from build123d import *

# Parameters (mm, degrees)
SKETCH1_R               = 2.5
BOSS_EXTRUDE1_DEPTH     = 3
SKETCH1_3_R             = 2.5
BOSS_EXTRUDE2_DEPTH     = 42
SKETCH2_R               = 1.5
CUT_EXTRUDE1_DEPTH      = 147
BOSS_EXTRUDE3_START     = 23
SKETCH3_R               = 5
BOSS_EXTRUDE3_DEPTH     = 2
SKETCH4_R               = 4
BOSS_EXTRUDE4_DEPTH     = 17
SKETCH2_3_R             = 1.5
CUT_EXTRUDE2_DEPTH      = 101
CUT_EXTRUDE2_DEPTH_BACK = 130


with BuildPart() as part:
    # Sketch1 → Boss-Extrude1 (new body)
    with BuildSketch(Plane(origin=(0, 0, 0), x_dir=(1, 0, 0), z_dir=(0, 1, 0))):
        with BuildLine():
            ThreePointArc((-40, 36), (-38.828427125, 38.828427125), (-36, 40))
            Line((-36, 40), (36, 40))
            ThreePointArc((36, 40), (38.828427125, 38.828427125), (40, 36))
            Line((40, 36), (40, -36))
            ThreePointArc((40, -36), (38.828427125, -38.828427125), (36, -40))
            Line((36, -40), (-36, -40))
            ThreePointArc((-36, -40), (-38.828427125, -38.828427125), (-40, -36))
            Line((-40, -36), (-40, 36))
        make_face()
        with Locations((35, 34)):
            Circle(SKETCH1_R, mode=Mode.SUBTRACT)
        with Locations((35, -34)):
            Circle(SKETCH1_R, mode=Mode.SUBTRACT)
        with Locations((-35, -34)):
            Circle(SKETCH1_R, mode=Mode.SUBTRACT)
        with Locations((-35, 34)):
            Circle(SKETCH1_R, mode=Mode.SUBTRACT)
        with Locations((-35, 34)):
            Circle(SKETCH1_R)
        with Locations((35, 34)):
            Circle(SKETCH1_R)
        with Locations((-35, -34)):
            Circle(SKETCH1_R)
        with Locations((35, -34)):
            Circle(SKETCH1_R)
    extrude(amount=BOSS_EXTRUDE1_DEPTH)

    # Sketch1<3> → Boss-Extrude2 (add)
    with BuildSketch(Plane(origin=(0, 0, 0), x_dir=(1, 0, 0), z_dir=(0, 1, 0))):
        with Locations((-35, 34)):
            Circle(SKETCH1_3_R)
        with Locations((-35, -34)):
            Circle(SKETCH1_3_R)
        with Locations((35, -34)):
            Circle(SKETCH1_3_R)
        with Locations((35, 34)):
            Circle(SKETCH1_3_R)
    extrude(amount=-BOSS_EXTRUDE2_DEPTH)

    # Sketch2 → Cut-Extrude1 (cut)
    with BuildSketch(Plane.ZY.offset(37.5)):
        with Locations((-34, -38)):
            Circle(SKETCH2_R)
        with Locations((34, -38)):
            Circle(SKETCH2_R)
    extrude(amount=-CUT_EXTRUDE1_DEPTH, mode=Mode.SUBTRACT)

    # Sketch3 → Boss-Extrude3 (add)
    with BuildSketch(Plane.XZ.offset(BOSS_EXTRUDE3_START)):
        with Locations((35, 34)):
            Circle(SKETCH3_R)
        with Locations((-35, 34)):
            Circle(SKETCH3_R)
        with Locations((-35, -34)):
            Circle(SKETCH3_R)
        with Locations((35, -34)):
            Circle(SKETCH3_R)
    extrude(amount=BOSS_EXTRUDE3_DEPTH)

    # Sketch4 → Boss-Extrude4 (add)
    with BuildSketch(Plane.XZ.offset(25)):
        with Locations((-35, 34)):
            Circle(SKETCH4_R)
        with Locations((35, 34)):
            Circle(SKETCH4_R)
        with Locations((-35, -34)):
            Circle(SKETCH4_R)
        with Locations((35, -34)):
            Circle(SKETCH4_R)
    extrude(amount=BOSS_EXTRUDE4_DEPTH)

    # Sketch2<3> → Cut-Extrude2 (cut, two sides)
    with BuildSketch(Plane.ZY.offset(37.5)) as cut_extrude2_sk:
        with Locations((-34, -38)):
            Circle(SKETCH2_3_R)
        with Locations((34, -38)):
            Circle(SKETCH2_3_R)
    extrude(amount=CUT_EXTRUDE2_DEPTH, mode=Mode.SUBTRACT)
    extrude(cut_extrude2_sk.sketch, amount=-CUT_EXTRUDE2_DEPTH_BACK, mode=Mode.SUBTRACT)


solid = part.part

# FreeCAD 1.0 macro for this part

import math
import FreeCAD as App
import Part
import Sketcher
Q = App.Units.Quantity

doc = App.newDocument("Part")
params = doc.addObject("Spreadsheet::Sheet", "Params")
for row, (alias, value) in enumerate([
    ("sketch1_radius", "4 mm"),
    ("sketch1_width", "72 mm"),
    ("pad1_length", "3 mm"),
    ("sketch2_diameter", "5 mm"),
    ("pad2_length", "42 mm"),
    ("sketch3_diameter", "3 mm"),
    ("pocket1_length", "147 mm"),
    ("sketch4_diameter", "10 mm"),
    ("pad3_length", "2 mm"),
    ("sketch5_diameter", "8 mm"),
    ("pad4_length", "17 mm"),
    ("sketch6_diameter", "3 mm"),
], start=1):
    params.set(f"A{row}", alias)
    params.set(f"B{row}", "=" + value)
    params.setAlias(f"B{row}", alias)

body = doc.addObject("PartDesign::Body", "Body")

sketch1 = body.newObject("Sketcher::SketchObject", "Sketch")
sketch1.AttachmentSupport = (doc.getObject("XZ_Plane"), [""])
sketch1.MapMode = "FlatFace"
sketch1.addGeometry(Part.ArcOfCircle(Part.Circle(App.Vector(-36, -36, 0), App.Vector(0, 0, 1), 4), math.radians(180), math.radians(270)), False)
sketch1.addGeometry(Part.LineSegment(App.Vector(-40, -36, 0), App.Vector(-40, 36, 0)), False)
sketch1.addGeometry(Part.ArcOfCircle(Part.Circle(App.Vector(-36, 36, 0), App.Vector(0, 0, 1), 4), math.radians(90), math.radians(180)), False)
sketch1.addGeometry(Part.LineSegment(App.Vector(-36, 40, 0), App.Vector(36, 40, 0)), False)
sketch1.addGeometry(Part.ArcOfCircle(Part.Circle(App.Vector(36, 36, 0), App.Vector(0, 0, 1), 4), math.radians(0), math.radians(90)), False)
sketch1.addGeometry(Part.LineSegment(App.Vector(40, 36, 0), App.Vector(40, -36, 0)), False)
sketch1.addGeometry(Part.ArcOfCircle(Part.Circle(App.Vector(36, -36, 0), App.Vector(0, 0, 1), 4), math.radians(-90), math.radians(0)), False)
sketch1.addGeometry(Part.LineSegment(App.Vector(36, -40, 0), App.Vector(-36, -40, 0)), False)
sketch1.addConstraint(Sketcher.Constraint("Tangent", 0, 1, 1, 1))
sketch1.addConstraint(Sketcher.Constraint("Tangent", 1, 2, 2, 2))
sketch1.addConstraint(Sketcher.Constraint("Tangent", 2, 1, 3, 1))
sketch1.addConstraint(Sketcher.Constraint("Tangent", 3, 2, 4, 2))
sketch1.addConstraint(Sketcher.Constraint("Tangent", 4, 1, 5, 1))
sketch1.addConstraint(Sketcher.Constraint("Tangent", 5, 2, 6, 2))
sketch1.addConstraint(Sketcher.Constraint("Tangent", 6, 1, 7, 1))
sketch1.addConstraint(Sketcher.Constraint("Tangent", 7, 2, 0, 2))
sketch1.addConstraint(Sketcher.Constraint("Vertical", 1))
sketch1.addConstraint(Sketcher.Constraint("Horizontal", 3))
sketch1.addConstraint(Sketcher.Constraint("Vertical", 5))
sketch1.addConstraint(Sketcher.Constraint("Horizontal", 7))
sketch1.addConstraint(Sketcher.Constraint("Equal", 0, 2))
sketch1.addConstraint(Sketcher.Constraint("Equal", 2, 4))
sketch1.addConstraint(Sketcher.Constraint("Equal", 4, 6))
sketch1.addConstraint(Sketcher.Constraint("Symmetric", 0, 3, 4, 3, -1, 1))
sketch1.addConstraint(Sketcher.Constraint("Equal", 7, 1))
sketch1.addConstraint(Sketcher.Constraint("Radius", 0, Q("4 mm")))
sketch1.addConstraint(Sketcher.Constraint("DistanceX", 3, 1, 3, 2, Q("72 mm")))
sketch1.setExpression("Constraints[17]", "Params.sketch1_radius")
sketch1.setExpression("Constraints[18]", "Params.sketch1_width")
pad1 = body.newObject("PartDesign::Pad", "Pad")
pad1.Profile = sketch1
pad1.setExpression("Length", "Params.pad1_length")
pad1.Reversed = True

sketch2 = body.newObject("Sketcher::SketchObject", "Sketch001")
sketch2.AttachmentSupport = (doc.getObject("XZ_Plane"), [""])
sketch2.MapMode = "FlatFace"
sketch2.addGeometry(Part.Circle(App.Vector(-35, -34, 0), App.Vector(0, 0, 1), 2.5), False)
sketch2.addGeometry(Part.Circle(App.Vector(-35, 34, 0), App.Vector(0, 0, 1), 2.5), False)
sketch2.addGeometry(Part.Circle(App.Vector(35, 34, 0), App.Vector(0, 0, 1), 2.5), False)
sketch2.addGeometry(Part.Circle(App.Vector(35, -34, 0), App.Vector(0, 0, 1), 2.5), False)
sketch2.addConstraint(Sketcher.Constraint("Equal", 0, 1))
sketch2.addConstraint(Sketcher.Constraint("Equal", 1, 2))
sketch2.addConstraint(Sketcher.Constraint("Equal", 2, 3))
sketch2.addConstraint(Sketcher.Constraint("Symmetric", 0, 3, 2, 3, -1, 1))
sketch2.addConstraint(Sketcher.Constraint("Symmetric", 1, 3, 3, 3, -1, 1))
sketch2.addConstraint(Sketcher.Constraint("Symmetric", 1, 3, 2, 3, -2))
sketch2.addConstraint(Sketcher.Constraint("Diameter", 0, Q("5 mm")))
sketch2.addConstraint(Sketcher.Constraint("DistanceX", 0, 3, -1, 1, Q("35 mm")))
sketch2.addConstraint(Sketcher.Constraint("DistanceY", 0, 3, -1, 1, Q("34 mm")))
sketch2.setExpression("Constraints[6]", "Params.sketch2_diameter")
pad2 = body.newObject("PartDesign::Pad", "Pad001")
pad2.Profile = sketch2
pad2.setExpression("Length", "Params.pad2_length")

sketch3 = body.newObject("Sketcher::SketchObject", "Sketch002")
sketch3.AttachmentSupport = (doc.getObject("YZ_Plane"), [""])
sketch3.MapMode = "FlatFace"
sketch3.AttachmentOffset = App.Placement(App.Vector(0, 0, -37.5), App.Rotation())
sketch3.addGeometry(Part.Circle(App.Vector(-38, -34, 0), App.Vector(0, 0, 1), 1.5), False)
sketch3.addGeometry(Part.Circle(App.Vector(-38, 34, 0), App.Vector(0, 0, 1), 1.5), False)
sketch3.addConstraint(Sketcher.Constraint("Equal", 0, 1))
sketch3.addConstraint(Sketcher.Constraint("Symmetric", 0, 3, 1, 3, -1))
sketch3.addConstraint(Sketcher.Constraint("Diameter", 0, Q("3 mm")))
sketch3.addConstraint(Sketcher.Constraint("DistanceX", 0, 3, -1, 1, Q("38 mm")))
sketch3.addConstraint(Sketcher.Constraint("DistanceY", 0, 3, -1, 1, Q("34 mm")))
sketch3.setExpression("Constraints[2]", "Params.sketch3_diameter")
pocket1 = body.newObject("PartDesign::Pocket", "Pocket")
pocket1.Profile = sketch3
pocket1.setExpression("Length", "Params.pocket1_length")
pocket1.Reversed = True

sketch4 = body.newObject("Sketcher::SketchObject", "Sketch003")
sketch4.AttachmentSupport = (doc.getObject("XZ_Plane"), [""])
sketch4.MapMode = "FlatFace"
sketch4.AttachmentOffset = App.Placement(App.Vector(0, 0, 23), App.Rotation())
sketch4.addGeometry(Part.Circle(App.Vector(35, 34, 0), App.Vector(0, 0, 1), 5), False)
sketch4.addGeometry(Part.Circle(App.Vector(-35, 34, 0), App.Vector(0, 0, 1), 5), False)
sketch4.addGeometry(Part.Circle(App.Vector(-35, -34, 0), App.Vector(0, 0, 1), 5), False)
sketch4.addGeometry(Part.Circle(App.Vector(35, -34, 0), App.Vector(0, 0, 1), 5), False)
sketch4.addConstraint(Sketcher.Constraint("Equal", 0, 1))
sketch4.addConstraint(Sketcher.Constraint("Equal", 1, 2))
sketch4.addConstraint(Sketcher.Constraint("Equal", 2, 3))
sketch4.addConstraint(Sketcher.Constraint("Symmetric", 0, 3, 2, 3, -1, 1))
sketch4.addConstraint(Sketcher.Constraint("Symmetric", 1, 3, 3, 3, -1, 1))
sketch4.addConstraint(Sketcher.Constraint("Symmetric", 0, 3, 1, 3, -2))
sketch4.addConstraint(Sketcher.Constraint("Diameter", 0, Q("10 mm")))
sketch4.addConstraint(Sketcher.Constraint("DistanceX", -1, 1, 0, 3, Q("35 mm")))
sketch4.addConstraint(Sketcher.Constraint("DistanceY", -1, 1, 0, 3, Q("34 mm")))
sketch4.setExpression("Constraints[6]", "Params.sketch4_diameter")
pad3 = body.newObject("PartDesign::Pad", "Pad002")
pad3.Profile = sketch4
pad3.setExpression("Length", "Params.pad3_length")

sketch5 = body.newObject("Sketcher::SketchObject", "Sketch004")
sketch5.AttachmentSupport = (doc.getObject("XZ_Plane"), [""])
sketch5.MapMode = "FlatFace"
sketch5.AttachmentOffset = App.Placement(App.Vector(0, 0, 25), App.Rotation())
sketch5.addGeometry(Part.Circle(App.Vector(-35, 34, 0), App.Vector(0, 0, 1), 4), False)
sketch5.addGeometry(Part.Circle(App.Vector(35, 34, 0), App.Vector(0, 0, 1), 4), False)
sketch5.addGeometry(Part.Circle(App.Vector(-35, -34, 0), App.Vector(0, 0, 1), 4), False)
sketch5.addGeometry(Part.Circle(App.Vector(35, -34, 0), App.Vector(0, 0, 1), 4), False)
sketch5.addConstraint(Sketcher.Constraint("Equal", 0, 1))
sketch5.addConstraint(Sketcher.Constraint("Equal", 1, 2))
sketch5.addConstraint(Sketcher.Constraint("Equal", 2, 3))
sketch5.addConstraint(Sketcher.Constraint("Symmetric", 1, 3, 2, 3, -1, 1))
sketch5.addConstraint(Sketcher.Constraint("Symmetric", 0, 3, 3, 3, -1, 1))
sketch5.addConstraint(Sketcher.Constraint("Symmetric", 0, 3, 1, 3, -2))
sketch5.addConstraint(Sketcher.Constraint("Diameter", 0, Q("8 mm")))
sketch5.addConstraint(Sketcher.Constraint("DistanceX", 0, 3, -1, 1, Q("35 mm")))
sketch5.addConstraint(Sketcher.Constraint("DistanceY", -1, 1, 0, 3, Q("34 mm")))
sketch5.setExpression("Constraints[6]", "Params.sketch5_diameter")
pad4 = body.newObject("PartDesign::Pad", "Pad003")
pad4.Profile = sketch5
pad4.setExpression("Length", "Params.pad4_length")

sketch6 = body.newObject("Sketcher::SketchObject", "Sketch005")
sketch6.AttachmentSupport = (doc.getObject("YZ_Plane"), [""])
sketch6.MapMode = "FlatFace"
sketch6.AttachmentOffset = App.Placement(App.Vector(0, 0, -37.5), App.Rotation())
sketch6.addGeometry(Part.Circle(App.Vector(-38, -34, 0), App.Vector(0, 0, 1), 1.5), False)
sketch6.addGeometry(Part.Circle(App.Vector(-38, 34, 0), App.Vector(0, 0, 1), 1.5), False)
sketch6.addConstraint(Sketcher.Constraint("Equal", 0, 1))
sketch6.addConstraint(Sketcher.Constraint("Symmetric", 0, 3, 1, 3, -1))
sketch6.addConstraint(Sketcher.Constraint("Diameter", 0, Q("3 mm")))
sketch6.addConstraint(Sketcher.Constraint("DistanceX", 0, 3, -1, 1, Q("38 mm")))
sketch6.addConstraint(Sketcher.Constraint("DistanceY", 0, 3, -1, 1, Q("34 mm")))
sketch6.setExpression("Constraints[2]", "Params.sketch6_diameter")
pocket2 = body.newObject("PartDesign::Pocket", "Pocket001")
pocket2.Profile = sketch6
pocket2.Type = "ThroughAll"
pocket2.Midplane = True

doc.recompute()
